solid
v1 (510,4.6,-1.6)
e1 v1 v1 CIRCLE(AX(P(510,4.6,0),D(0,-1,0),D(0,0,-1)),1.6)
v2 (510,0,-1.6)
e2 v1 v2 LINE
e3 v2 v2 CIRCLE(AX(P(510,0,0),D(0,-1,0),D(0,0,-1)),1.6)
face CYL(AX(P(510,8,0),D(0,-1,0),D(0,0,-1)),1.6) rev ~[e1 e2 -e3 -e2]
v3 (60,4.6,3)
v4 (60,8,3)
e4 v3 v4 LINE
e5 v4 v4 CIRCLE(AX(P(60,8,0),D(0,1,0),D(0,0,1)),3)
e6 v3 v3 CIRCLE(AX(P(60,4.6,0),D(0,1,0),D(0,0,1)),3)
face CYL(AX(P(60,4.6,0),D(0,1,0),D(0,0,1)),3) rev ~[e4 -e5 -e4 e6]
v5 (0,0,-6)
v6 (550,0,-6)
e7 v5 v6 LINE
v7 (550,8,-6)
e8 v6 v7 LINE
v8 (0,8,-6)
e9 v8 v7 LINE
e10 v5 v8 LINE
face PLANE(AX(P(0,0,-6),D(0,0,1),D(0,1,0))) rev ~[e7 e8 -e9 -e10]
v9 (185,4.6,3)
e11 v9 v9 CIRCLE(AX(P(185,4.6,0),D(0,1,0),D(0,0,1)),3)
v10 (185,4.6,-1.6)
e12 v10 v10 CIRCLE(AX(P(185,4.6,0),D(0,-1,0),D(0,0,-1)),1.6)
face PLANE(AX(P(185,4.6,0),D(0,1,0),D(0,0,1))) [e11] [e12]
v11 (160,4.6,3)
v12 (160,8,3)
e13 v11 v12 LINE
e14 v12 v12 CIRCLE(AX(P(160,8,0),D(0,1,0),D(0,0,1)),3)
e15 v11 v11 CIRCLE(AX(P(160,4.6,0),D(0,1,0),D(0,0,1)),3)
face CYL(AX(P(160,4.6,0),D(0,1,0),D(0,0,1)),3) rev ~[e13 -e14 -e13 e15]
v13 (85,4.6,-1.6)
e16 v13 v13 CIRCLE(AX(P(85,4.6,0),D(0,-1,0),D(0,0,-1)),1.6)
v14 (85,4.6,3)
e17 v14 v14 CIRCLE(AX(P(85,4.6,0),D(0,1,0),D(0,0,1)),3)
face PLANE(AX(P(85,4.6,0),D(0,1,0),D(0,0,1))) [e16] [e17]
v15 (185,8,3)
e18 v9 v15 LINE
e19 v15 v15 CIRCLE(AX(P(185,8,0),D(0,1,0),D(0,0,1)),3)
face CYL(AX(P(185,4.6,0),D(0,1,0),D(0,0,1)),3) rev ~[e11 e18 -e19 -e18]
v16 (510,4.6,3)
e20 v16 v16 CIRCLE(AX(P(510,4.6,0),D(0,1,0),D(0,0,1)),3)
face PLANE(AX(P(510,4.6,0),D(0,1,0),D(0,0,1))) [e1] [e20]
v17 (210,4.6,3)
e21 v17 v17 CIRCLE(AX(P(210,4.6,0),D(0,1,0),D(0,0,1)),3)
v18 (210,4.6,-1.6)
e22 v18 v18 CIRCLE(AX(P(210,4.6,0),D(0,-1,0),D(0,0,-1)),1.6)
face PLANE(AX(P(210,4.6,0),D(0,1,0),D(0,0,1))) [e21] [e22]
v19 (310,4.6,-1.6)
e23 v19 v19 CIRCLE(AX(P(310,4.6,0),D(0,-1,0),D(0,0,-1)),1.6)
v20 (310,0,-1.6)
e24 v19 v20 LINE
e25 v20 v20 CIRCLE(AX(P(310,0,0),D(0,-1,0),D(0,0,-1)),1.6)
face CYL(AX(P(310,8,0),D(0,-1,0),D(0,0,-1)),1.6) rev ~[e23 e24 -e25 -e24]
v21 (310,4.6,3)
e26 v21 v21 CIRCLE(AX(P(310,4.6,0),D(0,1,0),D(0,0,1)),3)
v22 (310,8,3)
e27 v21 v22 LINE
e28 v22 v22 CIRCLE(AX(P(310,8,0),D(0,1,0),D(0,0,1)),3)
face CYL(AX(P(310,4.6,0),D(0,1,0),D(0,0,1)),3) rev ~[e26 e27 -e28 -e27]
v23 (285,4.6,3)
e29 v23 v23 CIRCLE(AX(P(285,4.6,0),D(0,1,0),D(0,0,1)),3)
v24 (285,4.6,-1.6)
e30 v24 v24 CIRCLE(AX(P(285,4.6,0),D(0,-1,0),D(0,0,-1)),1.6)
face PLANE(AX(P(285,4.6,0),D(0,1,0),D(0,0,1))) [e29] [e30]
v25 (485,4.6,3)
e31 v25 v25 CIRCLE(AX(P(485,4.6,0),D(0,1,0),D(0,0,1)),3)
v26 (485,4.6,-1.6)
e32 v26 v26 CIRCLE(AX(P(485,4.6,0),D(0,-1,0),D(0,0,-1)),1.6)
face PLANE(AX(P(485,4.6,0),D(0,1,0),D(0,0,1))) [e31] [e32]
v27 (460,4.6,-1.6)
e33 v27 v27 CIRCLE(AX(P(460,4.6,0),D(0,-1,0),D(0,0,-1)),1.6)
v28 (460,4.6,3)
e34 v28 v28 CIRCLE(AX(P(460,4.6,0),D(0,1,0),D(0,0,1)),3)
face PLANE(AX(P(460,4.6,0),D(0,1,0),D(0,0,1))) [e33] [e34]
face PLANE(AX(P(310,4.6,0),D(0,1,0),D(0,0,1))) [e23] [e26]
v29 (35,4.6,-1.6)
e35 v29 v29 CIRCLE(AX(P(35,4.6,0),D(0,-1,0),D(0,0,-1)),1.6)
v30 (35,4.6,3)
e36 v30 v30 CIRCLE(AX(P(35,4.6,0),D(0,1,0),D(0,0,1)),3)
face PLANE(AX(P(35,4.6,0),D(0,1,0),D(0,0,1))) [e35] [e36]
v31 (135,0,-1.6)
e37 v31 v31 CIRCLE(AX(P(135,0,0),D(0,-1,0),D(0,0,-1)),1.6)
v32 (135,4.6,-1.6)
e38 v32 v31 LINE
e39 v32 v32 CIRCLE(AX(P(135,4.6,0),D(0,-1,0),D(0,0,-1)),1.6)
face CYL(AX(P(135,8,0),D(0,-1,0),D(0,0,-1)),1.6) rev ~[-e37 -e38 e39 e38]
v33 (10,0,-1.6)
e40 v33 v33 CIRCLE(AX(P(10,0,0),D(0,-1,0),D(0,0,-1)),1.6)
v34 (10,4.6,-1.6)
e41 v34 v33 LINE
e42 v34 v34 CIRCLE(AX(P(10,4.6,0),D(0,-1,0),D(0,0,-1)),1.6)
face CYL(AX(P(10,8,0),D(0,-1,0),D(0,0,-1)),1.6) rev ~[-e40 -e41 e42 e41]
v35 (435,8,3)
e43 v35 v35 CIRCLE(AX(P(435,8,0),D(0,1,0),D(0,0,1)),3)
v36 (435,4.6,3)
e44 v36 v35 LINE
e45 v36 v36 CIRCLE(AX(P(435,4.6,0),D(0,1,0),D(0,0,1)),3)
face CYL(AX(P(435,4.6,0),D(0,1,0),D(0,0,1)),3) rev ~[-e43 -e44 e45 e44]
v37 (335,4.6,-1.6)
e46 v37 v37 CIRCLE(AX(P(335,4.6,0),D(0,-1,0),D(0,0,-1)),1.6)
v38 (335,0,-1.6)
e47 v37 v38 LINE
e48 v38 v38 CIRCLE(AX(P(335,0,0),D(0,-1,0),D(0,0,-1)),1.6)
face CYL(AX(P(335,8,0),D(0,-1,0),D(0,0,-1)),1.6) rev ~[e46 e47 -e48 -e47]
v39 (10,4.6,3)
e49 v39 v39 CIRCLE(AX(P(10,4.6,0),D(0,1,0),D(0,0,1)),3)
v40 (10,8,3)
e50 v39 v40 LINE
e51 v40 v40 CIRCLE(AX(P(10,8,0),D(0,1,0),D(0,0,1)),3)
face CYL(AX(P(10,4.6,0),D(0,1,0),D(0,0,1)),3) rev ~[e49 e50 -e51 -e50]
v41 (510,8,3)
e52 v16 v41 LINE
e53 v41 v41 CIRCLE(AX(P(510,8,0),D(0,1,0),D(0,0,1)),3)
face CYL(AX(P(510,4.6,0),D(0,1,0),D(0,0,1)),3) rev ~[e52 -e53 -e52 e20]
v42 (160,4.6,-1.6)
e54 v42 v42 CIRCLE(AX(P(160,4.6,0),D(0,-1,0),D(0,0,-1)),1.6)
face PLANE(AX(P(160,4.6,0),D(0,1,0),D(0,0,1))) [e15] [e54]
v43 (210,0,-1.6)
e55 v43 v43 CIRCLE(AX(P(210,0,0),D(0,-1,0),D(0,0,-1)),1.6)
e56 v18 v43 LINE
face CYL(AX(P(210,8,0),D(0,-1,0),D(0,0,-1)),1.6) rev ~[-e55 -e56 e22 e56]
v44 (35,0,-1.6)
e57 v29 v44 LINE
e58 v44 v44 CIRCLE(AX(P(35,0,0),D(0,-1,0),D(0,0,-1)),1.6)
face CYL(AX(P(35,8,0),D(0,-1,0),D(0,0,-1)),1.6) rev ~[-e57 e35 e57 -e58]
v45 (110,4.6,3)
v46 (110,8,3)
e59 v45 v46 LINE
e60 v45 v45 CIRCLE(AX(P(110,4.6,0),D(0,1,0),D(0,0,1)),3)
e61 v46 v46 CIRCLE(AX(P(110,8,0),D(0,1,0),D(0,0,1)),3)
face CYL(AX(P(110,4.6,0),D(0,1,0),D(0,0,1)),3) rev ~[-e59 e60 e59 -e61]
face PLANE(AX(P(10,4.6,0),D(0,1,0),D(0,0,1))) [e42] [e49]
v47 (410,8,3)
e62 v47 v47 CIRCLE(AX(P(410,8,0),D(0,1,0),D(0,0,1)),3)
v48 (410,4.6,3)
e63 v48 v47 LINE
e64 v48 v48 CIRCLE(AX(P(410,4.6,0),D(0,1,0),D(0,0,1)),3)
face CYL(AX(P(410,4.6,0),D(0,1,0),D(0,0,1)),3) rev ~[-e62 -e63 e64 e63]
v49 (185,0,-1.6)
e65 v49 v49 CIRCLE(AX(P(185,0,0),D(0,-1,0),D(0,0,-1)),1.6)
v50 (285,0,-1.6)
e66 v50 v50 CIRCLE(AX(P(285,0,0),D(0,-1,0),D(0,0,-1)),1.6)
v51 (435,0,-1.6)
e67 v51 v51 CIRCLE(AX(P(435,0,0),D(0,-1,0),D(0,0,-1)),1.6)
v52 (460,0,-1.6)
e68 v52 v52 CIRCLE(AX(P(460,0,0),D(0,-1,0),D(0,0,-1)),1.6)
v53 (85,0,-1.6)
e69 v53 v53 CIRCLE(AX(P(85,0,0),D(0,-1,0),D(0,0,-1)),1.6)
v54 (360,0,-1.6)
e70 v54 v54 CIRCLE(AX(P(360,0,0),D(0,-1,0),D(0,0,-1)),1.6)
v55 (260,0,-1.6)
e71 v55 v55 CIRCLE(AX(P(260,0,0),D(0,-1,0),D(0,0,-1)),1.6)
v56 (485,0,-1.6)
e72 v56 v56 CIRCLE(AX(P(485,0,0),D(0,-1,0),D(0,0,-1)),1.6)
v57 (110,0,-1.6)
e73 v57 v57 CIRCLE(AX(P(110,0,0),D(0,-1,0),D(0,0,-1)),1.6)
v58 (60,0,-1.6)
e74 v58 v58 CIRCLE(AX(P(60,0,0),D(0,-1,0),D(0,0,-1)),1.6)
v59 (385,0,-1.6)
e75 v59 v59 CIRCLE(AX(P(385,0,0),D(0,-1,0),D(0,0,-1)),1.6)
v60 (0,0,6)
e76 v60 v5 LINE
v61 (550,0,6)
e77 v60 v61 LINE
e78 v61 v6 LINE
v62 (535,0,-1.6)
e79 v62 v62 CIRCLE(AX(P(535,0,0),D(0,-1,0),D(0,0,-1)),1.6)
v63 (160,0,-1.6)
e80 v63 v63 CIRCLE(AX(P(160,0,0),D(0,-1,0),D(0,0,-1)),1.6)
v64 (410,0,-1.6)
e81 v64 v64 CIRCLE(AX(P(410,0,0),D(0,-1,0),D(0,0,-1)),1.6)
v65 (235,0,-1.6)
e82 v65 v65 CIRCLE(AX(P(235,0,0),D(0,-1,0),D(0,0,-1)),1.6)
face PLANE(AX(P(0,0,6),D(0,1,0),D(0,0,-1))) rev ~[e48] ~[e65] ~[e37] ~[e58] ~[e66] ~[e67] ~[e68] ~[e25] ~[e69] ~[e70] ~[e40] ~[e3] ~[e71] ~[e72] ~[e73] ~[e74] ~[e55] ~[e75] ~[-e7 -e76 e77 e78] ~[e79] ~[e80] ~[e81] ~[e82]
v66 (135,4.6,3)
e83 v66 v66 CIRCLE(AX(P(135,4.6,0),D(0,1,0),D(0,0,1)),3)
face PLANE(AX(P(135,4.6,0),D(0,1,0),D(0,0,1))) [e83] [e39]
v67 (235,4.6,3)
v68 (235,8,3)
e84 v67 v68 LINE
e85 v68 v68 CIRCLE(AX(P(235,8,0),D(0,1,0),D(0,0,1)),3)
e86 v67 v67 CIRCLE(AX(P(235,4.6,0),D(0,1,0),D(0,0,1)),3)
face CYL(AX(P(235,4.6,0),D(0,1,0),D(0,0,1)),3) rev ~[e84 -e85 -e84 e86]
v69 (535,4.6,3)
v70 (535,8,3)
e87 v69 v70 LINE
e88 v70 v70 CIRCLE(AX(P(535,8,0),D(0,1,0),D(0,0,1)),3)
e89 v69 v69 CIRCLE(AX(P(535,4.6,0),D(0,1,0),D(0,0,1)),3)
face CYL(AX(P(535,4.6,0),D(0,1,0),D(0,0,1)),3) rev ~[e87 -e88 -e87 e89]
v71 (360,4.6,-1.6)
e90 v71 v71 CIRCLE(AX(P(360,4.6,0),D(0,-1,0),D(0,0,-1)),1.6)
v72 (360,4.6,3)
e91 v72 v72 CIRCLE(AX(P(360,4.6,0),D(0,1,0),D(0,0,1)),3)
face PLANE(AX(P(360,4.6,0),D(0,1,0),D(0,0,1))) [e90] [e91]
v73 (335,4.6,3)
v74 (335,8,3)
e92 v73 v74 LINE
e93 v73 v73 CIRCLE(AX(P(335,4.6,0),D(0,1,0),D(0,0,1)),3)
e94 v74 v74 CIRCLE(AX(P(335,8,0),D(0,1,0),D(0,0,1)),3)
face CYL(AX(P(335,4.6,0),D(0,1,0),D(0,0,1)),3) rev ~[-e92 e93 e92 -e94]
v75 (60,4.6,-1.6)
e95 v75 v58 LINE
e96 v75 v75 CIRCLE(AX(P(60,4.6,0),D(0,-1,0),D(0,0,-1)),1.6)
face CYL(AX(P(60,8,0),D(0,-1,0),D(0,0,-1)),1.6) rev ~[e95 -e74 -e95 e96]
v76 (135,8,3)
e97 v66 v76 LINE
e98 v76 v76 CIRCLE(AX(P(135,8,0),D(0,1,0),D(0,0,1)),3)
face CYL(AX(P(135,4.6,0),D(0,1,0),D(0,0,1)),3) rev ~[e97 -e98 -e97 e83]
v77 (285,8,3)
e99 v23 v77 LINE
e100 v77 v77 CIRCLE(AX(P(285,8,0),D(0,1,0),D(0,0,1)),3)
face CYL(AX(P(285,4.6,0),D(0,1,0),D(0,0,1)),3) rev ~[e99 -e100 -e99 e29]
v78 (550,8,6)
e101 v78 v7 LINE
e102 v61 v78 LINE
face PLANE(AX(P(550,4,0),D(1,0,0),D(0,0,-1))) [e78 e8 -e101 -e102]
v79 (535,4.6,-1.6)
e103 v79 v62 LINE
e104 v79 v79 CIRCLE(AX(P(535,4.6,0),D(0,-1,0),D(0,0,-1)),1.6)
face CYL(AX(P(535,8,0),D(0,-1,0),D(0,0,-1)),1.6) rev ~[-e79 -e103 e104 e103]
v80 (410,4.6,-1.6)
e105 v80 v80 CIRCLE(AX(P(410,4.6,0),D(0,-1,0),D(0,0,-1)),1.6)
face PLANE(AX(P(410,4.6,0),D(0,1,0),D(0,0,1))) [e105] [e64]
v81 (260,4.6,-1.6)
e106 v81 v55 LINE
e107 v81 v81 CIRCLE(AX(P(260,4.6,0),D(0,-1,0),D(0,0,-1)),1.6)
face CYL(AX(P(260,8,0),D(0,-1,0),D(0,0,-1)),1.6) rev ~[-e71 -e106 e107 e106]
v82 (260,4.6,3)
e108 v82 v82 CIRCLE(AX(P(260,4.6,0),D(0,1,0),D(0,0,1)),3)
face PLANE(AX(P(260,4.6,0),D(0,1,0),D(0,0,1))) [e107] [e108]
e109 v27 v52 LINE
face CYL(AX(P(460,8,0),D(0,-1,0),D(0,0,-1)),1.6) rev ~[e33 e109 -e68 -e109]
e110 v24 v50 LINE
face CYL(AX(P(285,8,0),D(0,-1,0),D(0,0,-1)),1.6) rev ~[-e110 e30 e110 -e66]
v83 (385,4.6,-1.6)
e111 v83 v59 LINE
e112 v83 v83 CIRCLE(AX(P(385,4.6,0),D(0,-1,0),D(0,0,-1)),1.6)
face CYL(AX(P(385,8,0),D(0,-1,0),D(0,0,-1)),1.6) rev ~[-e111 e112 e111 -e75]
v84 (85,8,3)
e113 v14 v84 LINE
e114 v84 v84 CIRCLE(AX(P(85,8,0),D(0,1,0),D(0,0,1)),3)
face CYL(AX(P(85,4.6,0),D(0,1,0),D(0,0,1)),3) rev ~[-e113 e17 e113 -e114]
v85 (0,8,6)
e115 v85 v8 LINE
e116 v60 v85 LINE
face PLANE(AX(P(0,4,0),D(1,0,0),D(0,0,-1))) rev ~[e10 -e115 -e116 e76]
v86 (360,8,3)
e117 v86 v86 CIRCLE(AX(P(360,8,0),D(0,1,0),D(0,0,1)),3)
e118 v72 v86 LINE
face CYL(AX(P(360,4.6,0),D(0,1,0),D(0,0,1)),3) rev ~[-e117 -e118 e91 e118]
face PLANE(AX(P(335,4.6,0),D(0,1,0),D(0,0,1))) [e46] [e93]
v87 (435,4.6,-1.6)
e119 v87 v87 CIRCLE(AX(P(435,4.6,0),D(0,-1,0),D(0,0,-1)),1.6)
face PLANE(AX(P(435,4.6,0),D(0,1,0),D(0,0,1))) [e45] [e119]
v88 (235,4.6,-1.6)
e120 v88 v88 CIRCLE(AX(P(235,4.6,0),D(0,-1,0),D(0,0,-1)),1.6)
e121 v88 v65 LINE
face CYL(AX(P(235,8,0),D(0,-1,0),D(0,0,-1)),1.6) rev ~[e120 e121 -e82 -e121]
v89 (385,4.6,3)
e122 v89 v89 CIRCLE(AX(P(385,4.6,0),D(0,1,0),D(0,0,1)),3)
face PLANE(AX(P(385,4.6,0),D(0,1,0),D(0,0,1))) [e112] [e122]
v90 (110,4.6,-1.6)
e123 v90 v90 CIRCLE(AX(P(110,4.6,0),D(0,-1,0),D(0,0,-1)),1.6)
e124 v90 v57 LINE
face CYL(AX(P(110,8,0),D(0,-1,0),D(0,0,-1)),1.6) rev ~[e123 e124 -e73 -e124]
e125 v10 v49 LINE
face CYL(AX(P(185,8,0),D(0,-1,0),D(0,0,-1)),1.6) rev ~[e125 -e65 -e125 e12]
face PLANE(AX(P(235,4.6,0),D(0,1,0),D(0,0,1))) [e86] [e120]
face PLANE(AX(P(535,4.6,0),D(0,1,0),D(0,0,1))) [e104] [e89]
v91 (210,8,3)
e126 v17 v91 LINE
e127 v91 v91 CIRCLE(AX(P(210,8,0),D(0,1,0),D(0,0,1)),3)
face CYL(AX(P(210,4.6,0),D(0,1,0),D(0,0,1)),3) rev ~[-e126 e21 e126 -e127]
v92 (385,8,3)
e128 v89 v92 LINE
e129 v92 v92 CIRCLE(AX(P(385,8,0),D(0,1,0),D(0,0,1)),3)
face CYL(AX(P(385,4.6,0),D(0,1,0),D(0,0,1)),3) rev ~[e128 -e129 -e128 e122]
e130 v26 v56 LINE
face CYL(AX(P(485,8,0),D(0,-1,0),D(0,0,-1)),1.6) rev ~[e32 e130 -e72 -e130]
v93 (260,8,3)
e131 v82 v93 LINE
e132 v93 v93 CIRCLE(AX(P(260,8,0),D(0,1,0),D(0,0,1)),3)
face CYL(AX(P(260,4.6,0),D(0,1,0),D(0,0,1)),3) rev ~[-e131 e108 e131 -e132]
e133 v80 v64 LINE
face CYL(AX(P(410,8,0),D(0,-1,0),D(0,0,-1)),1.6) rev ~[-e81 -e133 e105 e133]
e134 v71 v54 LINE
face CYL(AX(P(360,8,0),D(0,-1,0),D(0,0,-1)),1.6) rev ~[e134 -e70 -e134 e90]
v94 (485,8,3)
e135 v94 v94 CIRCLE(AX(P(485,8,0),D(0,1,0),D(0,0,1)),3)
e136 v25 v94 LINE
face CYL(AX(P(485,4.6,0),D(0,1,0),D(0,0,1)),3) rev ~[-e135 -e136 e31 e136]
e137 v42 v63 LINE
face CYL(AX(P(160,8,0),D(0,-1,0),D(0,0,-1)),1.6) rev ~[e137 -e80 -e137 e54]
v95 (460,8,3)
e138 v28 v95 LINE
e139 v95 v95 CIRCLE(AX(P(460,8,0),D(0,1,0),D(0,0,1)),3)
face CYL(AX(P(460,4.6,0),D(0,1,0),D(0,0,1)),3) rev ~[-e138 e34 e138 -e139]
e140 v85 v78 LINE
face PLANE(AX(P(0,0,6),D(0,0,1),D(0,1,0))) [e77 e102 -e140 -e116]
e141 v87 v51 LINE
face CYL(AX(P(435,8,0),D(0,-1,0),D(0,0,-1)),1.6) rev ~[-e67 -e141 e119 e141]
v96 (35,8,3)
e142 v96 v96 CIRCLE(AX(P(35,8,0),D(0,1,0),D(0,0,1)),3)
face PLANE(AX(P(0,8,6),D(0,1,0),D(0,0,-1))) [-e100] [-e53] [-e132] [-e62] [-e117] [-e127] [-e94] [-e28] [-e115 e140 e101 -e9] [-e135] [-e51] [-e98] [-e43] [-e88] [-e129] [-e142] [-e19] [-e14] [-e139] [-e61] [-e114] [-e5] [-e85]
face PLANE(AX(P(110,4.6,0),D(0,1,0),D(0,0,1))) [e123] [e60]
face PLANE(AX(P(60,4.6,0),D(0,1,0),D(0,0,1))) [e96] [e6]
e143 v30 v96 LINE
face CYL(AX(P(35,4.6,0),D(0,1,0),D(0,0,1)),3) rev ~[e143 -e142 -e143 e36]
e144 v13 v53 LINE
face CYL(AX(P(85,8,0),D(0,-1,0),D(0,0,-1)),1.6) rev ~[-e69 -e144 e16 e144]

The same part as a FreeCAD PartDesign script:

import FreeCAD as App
import Part
import Sketcher

V = App.Vector


def add_polygon(sketch, points):
    """Adds a closed chain of lines whose ends are joined by coincident constraints."""
    first, n = sketch.GeometryCount, len(points)
    for a, b in zip(points, points[1:] + points[:1]):
        sketch.addGeometry(Part.LineSegment(App.Vector(*a, 0), App.Vector(*b, 0)), False)
    for i in range(n):
        sketch.addConstraint(Sketcher.Constraint("Coincident", first + i, 2, first + (i + 1) % n, 1))

doc = App.newDocument("Part")
body = doc.addObject("PartDesign::Body", "Body")

# Sketch on YZ plane
sketch1 = body.newObject("Sketcher::SketchObject", "Sketch")
sketch1.AttachmentSupport = (doc.getObject("YZ_Plane"), [""])
sketch1.MapMode = "FlatFace"
add_polygon(sketch1, [(8, 6), (0, 6), (0, -6), (8, -6)])  # lines 0-3
sketch1.addConstraint([
    Sketcher.Constraint("Horizontal", 0),
    Sketcher.Constraint("Vertical", 1),
    Sketcher.Constraint("Horizontal", 2),
    Sketcher.Constraint("Vertical", 3),
    Sketcher.Constraint("Symmetric", 0, 2, 1, 2, -1, 1),
    Sketcher.Constraint("DistanceX", 0, 2, 0, 1, 8.0),
    Sketcher.Constraint("DistanceY", 1, 2, 1, 1, 12.0),
])
pad1 = body.newObject("PartDesign::Pad", "Pad")
pad1.Profile = sketch1
pad1.Length = 550

# Sketch on XZ plane
sketch2 = body.newObject("Sketcher::SketchObject", "Sketch001")
sketch2.AttachmentSupport = (doc.getObject("XZ_Plane"), [""])
sketch2.MapMode = "FlatFace"
sketch2.AttachmentOffset = App.Placement(V(0, 0, -8), App.Rotation())
sketch2.addGeometry(Part.Circle(V(10, 0, 0), V(0, 0, 1), 1.6), False)
sketch2.addConstraint([
    Sketcher.Constraint("PointOnObject", 0, 3, -1),
    Sketcher.Constraint("Diameter", 0, 3.2),
    Sketcher.Constraint("DistanceX", -1, 1, 0, 3, 10.0),
])
doc.recompute()
hole = body.newObject("PartDesign::Hole", "Hole")
hole.Profile = sketch2
hole.ThreadType = "None"
hole.Diameter = 3.2
hole.DepthType = "ThroughAll"
hole.HoleCutType = "Counterbore"
hole.HoleCutDiameter = 6
hole.HoleCutDepth = 3.4
hole.Reversed = True
doc.recompute()

linearpattern = body.newObject("PartDesign::LinearPattern", "LinearPattern")
linearpattern.Originals = [hole]
linearpattern.Direction = (doc.getObject("X_Axis"), [""])
linearpattern.Mode = "offset"
linearpattern.Offset = 25
linearpattern.Occurrences = 22
body.Tip = linearpattern

doc.recompute()
